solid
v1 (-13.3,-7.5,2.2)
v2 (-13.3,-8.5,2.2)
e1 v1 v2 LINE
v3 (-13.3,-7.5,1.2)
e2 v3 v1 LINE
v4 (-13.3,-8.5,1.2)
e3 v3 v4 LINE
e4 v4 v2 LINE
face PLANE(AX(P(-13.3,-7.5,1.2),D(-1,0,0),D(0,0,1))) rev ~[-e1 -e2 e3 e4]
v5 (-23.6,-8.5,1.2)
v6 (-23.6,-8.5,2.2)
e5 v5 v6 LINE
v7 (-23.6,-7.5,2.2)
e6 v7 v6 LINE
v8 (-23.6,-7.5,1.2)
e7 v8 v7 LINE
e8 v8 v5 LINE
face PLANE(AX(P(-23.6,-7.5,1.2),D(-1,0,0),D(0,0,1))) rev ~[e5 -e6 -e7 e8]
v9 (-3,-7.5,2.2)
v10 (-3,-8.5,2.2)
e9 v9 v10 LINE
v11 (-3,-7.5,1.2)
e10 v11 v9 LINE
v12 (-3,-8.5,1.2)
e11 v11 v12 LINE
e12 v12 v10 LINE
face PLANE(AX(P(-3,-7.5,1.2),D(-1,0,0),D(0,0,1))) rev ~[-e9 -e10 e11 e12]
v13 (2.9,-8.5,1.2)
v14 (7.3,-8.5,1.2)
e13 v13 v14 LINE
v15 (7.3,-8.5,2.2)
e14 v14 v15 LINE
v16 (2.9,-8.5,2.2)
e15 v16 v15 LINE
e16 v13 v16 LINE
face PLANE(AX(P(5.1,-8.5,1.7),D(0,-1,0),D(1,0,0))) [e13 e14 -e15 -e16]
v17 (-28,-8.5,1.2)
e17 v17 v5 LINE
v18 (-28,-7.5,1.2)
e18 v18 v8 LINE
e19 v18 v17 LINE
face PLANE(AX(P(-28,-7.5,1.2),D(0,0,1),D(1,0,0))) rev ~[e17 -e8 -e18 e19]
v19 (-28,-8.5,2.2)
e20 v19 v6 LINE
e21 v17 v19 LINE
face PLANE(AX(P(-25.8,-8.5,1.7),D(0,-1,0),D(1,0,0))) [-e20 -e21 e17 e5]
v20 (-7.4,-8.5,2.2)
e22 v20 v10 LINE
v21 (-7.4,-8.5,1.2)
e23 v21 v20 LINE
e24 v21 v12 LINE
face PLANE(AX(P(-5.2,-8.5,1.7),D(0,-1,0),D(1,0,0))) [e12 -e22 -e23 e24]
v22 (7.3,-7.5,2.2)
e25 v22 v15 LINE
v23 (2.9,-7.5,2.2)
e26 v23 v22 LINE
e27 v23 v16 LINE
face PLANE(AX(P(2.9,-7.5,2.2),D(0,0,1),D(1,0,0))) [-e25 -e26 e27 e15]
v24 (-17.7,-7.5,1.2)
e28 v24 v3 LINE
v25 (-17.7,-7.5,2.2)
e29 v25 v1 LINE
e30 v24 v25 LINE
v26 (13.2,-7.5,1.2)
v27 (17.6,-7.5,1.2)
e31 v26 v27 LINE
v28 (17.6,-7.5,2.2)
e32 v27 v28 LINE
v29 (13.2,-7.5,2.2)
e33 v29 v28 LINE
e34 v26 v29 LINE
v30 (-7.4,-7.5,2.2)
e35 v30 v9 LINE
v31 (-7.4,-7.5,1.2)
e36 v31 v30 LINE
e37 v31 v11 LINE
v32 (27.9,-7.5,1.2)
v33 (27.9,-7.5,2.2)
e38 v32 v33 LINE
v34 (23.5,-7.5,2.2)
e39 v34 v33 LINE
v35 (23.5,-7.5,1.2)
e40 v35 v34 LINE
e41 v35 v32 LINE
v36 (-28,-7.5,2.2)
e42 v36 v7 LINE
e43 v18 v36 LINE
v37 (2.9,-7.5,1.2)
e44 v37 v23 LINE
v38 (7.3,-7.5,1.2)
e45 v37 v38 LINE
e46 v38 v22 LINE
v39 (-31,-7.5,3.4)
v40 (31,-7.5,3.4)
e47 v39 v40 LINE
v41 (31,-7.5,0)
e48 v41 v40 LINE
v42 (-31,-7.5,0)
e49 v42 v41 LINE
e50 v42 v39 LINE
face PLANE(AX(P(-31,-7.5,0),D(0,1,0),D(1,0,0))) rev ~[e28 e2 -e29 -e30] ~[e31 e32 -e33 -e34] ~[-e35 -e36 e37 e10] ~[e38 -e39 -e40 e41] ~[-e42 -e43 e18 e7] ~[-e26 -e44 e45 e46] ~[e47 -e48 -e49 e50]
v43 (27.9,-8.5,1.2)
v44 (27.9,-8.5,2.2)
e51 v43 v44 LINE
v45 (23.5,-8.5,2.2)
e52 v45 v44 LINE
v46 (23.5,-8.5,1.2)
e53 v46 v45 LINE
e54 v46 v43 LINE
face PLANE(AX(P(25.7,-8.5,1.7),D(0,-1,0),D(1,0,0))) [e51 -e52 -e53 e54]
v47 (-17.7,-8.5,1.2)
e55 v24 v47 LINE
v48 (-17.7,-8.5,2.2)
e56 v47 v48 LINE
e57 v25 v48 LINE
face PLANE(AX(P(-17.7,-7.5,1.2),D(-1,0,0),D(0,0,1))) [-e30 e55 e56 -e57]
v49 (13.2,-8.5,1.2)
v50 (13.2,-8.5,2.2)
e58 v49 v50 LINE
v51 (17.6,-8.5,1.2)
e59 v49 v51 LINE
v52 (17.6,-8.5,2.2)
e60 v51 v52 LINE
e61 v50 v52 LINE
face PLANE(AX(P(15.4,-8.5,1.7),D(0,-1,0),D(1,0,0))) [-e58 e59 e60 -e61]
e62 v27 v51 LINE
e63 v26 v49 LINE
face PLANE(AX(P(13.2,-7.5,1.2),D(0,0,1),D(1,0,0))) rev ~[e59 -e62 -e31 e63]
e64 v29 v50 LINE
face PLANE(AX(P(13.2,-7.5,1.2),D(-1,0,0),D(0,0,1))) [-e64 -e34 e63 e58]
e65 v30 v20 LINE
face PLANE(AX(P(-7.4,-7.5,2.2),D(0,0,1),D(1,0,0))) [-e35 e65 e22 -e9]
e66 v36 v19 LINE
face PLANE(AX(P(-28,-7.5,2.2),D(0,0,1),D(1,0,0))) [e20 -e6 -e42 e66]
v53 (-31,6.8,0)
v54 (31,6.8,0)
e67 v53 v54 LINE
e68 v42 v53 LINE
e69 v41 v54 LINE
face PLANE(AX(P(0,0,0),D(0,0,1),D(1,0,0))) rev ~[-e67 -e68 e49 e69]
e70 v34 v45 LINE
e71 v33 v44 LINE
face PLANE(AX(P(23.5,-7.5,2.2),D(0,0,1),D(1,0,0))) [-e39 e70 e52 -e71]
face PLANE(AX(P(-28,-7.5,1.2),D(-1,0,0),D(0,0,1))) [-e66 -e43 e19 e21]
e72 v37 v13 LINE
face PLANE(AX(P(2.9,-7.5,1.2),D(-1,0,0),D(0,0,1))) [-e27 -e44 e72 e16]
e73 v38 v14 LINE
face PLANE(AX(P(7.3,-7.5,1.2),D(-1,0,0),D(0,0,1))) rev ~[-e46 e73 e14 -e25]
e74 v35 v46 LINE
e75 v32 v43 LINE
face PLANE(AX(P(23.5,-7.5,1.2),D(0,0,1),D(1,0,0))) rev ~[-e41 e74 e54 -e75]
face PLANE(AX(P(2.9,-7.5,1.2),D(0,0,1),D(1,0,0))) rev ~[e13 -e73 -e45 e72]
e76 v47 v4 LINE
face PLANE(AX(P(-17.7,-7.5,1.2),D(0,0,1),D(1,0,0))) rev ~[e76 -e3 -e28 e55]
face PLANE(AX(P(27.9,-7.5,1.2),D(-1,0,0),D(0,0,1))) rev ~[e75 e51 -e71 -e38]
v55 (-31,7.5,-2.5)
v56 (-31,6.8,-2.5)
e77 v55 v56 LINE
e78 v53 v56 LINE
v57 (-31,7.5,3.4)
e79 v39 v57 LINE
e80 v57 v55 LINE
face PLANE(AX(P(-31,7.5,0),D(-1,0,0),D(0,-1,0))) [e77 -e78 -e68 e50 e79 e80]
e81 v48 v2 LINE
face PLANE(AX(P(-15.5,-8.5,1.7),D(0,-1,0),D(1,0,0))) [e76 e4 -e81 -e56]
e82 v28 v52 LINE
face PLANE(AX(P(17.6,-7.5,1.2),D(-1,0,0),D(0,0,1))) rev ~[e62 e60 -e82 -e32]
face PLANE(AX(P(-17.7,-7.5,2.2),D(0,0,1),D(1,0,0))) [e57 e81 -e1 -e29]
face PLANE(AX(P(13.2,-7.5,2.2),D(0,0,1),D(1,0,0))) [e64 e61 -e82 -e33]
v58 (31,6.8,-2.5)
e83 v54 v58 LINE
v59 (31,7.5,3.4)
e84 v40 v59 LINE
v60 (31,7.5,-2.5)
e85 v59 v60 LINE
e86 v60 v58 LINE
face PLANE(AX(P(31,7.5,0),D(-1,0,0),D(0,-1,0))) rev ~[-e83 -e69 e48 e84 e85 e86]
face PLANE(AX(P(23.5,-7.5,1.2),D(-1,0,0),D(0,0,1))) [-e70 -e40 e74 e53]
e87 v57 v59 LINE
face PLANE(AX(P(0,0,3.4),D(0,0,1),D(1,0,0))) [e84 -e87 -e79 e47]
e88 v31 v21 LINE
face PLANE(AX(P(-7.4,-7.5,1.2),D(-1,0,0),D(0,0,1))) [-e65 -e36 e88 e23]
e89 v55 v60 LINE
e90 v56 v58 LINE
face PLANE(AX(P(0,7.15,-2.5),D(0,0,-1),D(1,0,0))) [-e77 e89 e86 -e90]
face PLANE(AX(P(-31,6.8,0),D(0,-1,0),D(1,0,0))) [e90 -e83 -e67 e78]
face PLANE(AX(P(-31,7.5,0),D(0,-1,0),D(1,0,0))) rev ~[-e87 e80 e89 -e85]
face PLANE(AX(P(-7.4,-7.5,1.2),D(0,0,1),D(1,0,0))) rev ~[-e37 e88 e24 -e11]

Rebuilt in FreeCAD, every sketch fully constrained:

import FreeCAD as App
import Part
import Sketcher
from FreeCAD import Vector
Q = App.Units.Quantity


def add_polygon(sketch, points):
    """Adds a closed chain of lines whose ends are joined by coincident constraints."""
    first, n = sketch.GeometryCount, len(points)
    for a, b in zip(points, points[1:] + points[:1]):
        sketch.addGeometry(Part.LineSegment(App.Vector(*a, 0), App.Vector(*b, 0)), False)
    for i in range(n):
        sketch.addConstraint(Sketcher.Constraint("Coincident", first + i, 2, first + (i + 1) % n, 1))

doc = App.newDocument("Part")
body = doc.addObject("PartDesign::Body", "Body")

# Sketch on XY plane
sketch1 = body.newObject("Sketcher::SketchObject", "Sketch")
sketch1.AttachmentSupport = (doc.getObject("XY_Plane"), [""])
sketch1.MapMode = "FlatFace"
add_polygon(sketch1, [(-31, 8), (-31, -8), (31, -8), (31, 8)])  # lines 0-3
sketch1.addConstraint([
    Sketcher.Constraint("Vertical", 0),
    Sketcher.Constraint("Horizontal", 1),
    Sketcher.Constraint("Vertical", 2),
    Sketcher.Constraint("Horizontal", 3),
    Sketcher.Constraint("Symmetric", 0, 2, 2, 2, -1, 1),
    Sketcher.Constraint("DistanceX", 1, 1, 1, 2, Q("62 mm")),
    Sketcher.Constraint("DistanceY", 0, 2, 0, 1, Q("15 mm")),
])
pad1 = body.newObject("PartDesign::Pad", "Pad")
pad1.Profile = sketch1
pad1.Length = 3.4

# Sketch on XY plane
sketch2 = body.newObject("Sketcher::SketchObject", "Sketch001")
sketch2.AttachmentSupport = (doc.getObject("XY_Plane"), [""])
sketch2.MapMode = "FlatFace"
add_polygon(sketch2, [(-31, 6.8), (-31, 7.5), (31, 7.5), (31, 6.8)])  # lines 0-3
sketch2.addConstraint([
    Sketcher.Constraint("Vertical", 0),
    Sketcher.Constraint("Horizontal", 1),
    Sketcher.Constraint("Vertical", 2),
    Sketcher.Constraint("Horizontal", 3),
    Sketcher.Constraint("DistanceX", 1, 1, 1, 2, Q("62 mm")),
    Sketcher.Constraint("DistanceY", 0, 1, 0, 2, Q("0.7 mm")),
    Sketcher.Constraint("DistanceX", 0, 2, -1, 1, Q("31 mm")),
    Sketcher.Constraint("DistanceY", -1, 1, 0, 2, Q("7.5 mm")),
])
pad2 = body.newObject("PartDesign::Pad", "Pad001")
pad2.Profile = sketch2
pad2.Length = 2.5
pad2.Reversed = True

# Sketch on XZ plane
sketch3 = body.newObject("Sketcher::SketchObject", "Sketch002")
sketch3.AttachmentSupport = (doc.getObject("XZ_Plane"), [""])
sketch3.MapMode = "FlatFace"
sketch3.AttachmentOffset = App.Placement(Vector(0, 0, 7.5), App.Rotation())
add_polygon(sketch3, [(-28, 2.2), (-28, 1.2), (-23.6, 1.2), (-23.6, 2.2)])  # lines 0-3
add_polygon(sketch3, [(-17.7, 2.2), (-17.7, 1.2), (-13.3, 1.2), (-13.3, 2.2)])  # lines 4-7
add_polygon(sketch3, [(-7.4, 2.2), (-7.4, 1.2), (-3, 1.2), (-3, 2.2)])  # lines 8-11
add_polygon(sketch3, [(2.9, 2.2), (2.9, 1.2), (7.3, 1.2), (7.3, 2.2)])  # lines 12-15
add_polygon(sketch3, [(13.2, 2.2), (13.2, 1.2), (17.6, 1.2), (17.6, 2.2)])  # lines 16-19
add_polygon(sketch3, [(23.5, 2.2), (23.5, 1.2), (27.9, 1.2), (27.9, 2.2)])  # lines 20-23
sketch3.addConstraint([
    Sketcher.Constraint("Vertical", 0),
    Sketcher.Constraint("Horizontal", 1),
    Sketcher.Constraint("Vertical", 2),
    Sketcher.Constraint("Horizontal", 3),
    Sketcher.Constraint("Vertical", 4),
    Sketcher.Constraint("Horizontal", 5),
    Sketcher.Constraint("Vertical", 6),
    Sketcher.Constraint("Horizontal", 7),
    Sketcher.Constraint("Vertical", 8),
    Sketcher.Constraint("Horizontal", 9),
    Sketcher.Constraint("Vertical", 10),
    Sketcher.Constraint("Horizontal", 11),
    Sketcher.Constraint("Vertical", 12),
    Sketcher.Constraint("Horizontal", 13),
    Sketcher.Constraint("Vertical", 14),
    Sketcher.Constraint("Horizontal", 15),
    Sketcher.Constraint("Vertical", 16),
    Sketcher.Constraint("Horizontal", 17),
    Sketcher.Constraint("Vertical", 18),
    Sketcher.Constraint("Horizontal", 19),
    Sketcher.Constraint("Vertical", 20),
    Sketcher.Constraint("Horizontal", 21),
    Sketcher.Constraint("Vertical", 22),
    Sketcher.Constraint("Horizontal", 23),
    Sketcher.Constraint("Horizontal", 1, 2, 4, 2),
    Sketcher.Constraint("Horizontal", 3, 2, 6, 2),
    Sketcher.Constraint("Horizontal", 5, 2, 8, 2),
    Sketcher.Constraint("Horizontal", 7, 2, 10, 2),
    Sketcher.Constraint("Horizontal", 9, 2, 12, 2),
    Sketcher.Constraint("Horizontal", 11, 2, 14, 2),
    Sketcher.Constraint("Horizontal", 13, 2, 16, 2),
    Sketcher.Constraint("Horizontal", 15, 2, 18, 2),
    Sketcher.Constraint("Horizontal", 17, 2, 20, 2),
    Sketcher.Constraint("Horizontal", 19, 2, 22, 2),
    Sketcher.Constraint("Equal", 3, 5),
    Sketcher.Constraint("Equal", 7, 9),
    Sketcher.Constraint("Equal", 11, 13),
    Sketcher.Constraint("Equal", 15, 17),
    Sketcher.Constraint("Equal", 19, 21),
    Sketcher.Constraint("DistanceY", 0, 2, 0, 1, Q("1 mm")),
    Sketcher.Constraint("DistanceX", 1, 1, 1, 2, Q("4.4 mm")),
    Sketcher.Constraint("DistanceX", 0, 2, -1, 1, Q("28 mm")),
    Sketcher.Constraint("DistanceX", 9, 2, -1, 1, Q("3 mm")),
    Sketcher.Constraint("DistanceY", -1, 1, 0, 2, Q("1.2 mm")),
    Sketcher.Constraint("DistanceX", 4, 2, -1, 1, Q("17.7 mm")),
    Sketcher.Constraint("DistanceX", -1, 1, 12, 2, Q("2.9 mm")),
    Sketcher.Constraint("DistanceX", -1, 1, 16, 2, Q("13.2 mm")),
    Sketcher.Constraint("DistanceX", -1, 1, 20, 2, Q("23.5 mm")),
])
pad3 = body.newObject("PartDesign::Pad", "Pad002")
pad3.Profile = sketch3
pad3.Length = 1

doc.recompute()
